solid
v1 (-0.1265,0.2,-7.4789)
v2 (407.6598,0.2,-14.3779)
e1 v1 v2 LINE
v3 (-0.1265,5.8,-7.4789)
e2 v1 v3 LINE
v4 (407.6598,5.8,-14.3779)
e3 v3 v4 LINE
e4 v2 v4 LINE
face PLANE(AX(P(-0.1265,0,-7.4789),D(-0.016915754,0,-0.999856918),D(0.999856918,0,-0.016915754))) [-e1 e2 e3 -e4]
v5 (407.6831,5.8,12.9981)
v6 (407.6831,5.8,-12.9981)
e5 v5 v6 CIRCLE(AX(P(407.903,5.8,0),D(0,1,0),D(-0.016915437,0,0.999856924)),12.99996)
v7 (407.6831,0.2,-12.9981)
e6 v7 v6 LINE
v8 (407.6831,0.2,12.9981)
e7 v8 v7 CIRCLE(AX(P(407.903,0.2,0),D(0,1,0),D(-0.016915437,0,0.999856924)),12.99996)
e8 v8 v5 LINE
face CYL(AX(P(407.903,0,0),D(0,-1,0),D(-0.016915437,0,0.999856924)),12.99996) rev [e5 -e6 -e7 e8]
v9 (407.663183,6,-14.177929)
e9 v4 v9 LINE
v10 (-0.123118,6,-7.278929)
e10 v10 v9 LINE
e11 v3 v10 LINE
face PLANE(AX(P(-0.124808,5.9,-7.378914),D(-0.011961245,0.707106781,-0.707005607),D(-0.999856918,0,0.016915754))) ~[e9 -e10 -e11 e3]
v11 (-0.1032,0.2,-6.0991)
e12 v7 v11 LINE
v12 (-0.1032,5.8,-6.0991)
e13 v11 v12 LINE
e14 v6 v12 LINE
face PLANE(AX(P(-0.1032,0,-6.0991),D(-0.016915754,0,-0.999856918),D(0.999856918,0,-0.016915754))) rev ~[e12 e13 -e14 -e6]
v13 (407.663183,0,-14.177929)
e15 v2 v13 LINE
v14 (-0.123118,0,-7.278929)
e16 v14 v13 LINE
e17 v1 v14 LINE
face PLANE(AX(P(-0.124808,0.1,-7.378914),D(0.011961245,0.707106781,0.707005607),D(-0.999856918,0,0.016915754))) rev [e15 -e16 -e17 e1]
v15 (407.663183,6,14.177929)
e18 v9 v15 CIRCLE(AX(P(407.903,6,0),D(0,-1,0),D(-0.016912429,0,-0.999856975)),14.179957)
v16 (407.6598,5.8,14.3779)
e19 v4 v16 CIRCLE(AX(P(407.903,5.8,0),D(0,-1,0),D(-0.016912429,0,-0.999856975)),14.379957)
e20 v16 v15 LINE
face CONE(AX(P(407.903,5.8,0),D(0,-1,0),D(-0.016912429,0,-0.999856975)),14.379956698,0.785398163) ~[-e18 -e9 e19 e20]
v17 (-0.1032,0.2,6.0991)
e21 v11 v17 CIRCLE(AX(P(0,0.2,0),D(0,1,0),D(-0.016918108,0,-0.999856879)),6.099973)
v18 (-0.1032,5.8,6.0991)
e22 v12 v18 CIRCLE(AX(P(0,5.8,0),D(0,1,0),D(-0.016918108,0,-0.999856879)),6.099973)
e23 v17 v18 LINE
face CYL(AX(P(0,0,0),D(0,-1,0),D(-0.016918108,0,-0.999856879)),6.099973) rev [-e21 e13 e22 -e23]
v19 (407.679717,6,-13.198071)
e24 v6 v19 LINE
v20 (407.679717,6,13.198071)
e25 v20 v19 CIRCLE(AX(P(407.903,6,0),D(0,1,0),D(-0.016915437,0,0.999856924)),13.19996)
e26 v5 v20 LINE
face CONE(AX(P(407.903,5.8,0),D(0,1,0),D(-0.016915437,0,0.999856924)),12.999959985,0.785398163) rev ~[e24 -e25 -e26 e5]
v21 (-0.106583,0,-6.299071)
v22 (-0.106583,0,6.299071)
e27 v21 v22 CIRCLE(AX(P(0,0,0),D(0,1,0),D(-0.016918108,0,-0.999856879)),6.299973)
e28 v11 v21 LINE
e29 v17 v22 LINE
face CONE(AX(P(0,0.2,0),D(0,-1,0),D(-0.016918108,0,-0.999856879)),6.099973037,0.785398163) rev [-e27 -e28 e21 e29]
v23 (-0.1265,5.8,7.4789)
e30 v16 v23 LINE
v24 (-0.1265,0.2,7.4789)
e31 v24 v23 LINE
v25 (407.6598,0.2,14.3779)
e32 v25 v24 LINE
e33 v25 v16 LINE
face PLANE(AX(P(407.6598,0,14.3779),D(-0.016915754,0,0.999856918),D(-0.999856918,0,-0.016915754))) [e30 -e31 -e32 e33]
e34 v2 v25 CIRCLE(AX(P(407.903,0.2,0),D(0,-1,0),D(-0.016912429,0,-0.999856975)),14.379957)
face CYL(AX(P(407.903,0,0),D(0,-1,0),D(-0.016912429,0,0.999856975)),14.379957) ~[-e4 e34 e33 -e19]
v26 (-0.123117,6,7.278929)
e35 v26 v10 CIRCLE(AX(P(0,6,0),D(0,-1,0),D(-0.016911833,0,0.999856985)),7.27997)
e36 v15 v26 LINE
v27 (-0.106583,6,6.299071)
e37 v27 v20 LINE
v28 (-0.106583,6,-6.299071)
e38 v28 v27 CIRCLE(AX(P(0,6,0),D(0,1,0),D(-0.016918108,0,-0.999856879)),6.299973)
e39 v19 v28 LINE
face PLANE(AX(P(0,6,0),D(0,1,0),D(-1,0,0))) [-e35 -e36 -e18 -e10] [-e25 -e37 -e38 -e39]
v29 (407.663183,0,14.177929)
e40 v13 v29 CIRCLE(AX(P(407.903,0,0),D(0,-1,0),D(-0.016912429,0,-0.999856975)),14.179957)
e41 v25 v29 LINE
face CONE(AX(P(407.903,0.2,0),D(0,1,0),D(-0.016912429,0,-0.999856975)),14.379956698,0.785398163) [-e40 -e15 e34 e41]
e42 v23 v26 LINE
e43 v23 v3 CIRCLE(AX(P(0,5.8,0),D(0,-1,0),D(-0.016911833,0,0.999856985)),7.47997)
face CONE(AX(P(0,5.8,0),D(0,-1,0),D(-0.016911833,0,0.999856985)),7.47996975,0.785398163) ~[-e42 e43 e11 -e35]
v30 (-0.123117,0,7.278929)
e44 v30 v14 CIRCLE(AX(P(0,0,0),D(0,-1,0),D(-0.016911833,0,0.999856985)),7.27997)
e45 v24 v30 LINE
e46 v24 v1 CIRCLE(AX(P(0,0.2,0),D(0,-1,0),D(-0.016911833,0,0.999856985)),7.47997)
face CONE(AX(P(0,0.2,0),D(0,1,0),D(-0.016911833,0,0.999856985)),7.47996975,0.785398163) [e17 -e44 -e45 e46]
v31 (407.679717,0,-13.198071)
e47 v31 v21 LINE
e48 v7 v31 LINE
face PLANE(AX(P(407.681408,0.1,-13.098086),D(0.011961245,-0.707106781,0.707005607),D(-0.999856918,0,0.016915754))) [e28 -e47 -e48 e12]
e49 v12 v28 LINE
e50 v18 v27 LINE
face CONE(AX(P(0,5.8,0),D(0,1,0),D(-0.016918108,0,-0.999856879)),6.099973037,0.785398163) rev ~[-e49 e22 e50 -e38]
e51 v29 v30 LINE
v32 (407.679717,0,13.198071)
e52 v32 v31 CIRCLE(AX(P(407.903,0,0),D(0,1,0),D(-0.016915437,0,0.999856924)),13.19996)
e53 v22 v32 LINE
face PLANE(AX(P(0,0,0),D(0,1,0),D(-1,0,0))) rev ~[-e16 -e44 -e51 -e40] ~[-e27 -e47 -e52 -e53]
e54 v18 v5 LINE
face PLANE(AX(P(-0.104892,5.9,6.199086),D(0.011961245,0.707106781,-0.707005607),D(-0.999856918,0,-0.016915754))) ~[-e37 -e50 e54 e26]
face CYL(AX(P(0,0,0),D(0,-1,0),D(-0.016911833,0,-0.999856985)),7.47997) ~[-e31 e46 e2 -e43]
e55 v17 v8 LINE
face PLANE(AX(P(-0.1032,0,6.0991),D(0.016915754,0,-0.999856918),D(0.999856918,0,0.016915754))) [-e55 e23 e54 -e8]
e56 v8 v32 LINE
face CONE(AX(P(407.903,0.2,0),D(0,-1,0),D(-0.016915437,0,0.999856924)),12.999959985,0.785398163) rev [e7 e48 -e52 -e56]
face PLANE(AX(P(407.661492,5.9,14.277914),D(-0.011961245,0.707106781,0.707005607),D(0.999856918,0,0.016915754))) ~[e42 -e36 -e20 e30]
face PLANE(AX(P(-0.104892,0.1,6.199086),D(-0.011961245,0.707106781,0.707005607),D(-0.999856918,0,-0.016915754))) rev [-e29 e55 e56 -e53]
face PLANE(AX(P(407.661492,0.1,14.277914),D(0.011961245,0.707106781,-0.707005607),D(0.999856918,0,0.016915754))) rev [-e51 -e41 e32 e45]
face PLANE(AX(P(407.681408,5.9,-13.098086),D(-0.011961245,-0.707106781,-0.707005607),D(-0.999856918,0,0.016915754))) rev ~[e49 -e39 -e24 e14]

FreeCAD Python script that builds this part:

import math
import FreeCAD as App
import Part
import Sketcher
from FreeCAD import Vector
Q = App.Units.Quantity


def edges_at(feature, points):
    """Names of the edges that pass closest to the given points."""
    edges = feature.Shape.Edges
    near = lambda p: min(range(len(edges)), key=lambda i: edges[i].distToShape(Part.Vertex(*p))[0])
    return sorted({f"Edge{near(p) + 1}" for p in points})

doc = App.newDocument("Part")
params = doc.addObject("Spreadsheet::Sheet", "Params")
for row, (alias, value) in enumerate([
    ("sketch1_radius", "13 mm"),
    ("sketch1_radius2", "6.1 mm"),
    ("sketch1_radius3", "14.38 mm"),
    ("pad1_length", "6 mm"),
    ("chamfer_size", "0.2 mm"),
], start=1):
    params.set(f"A{row}", alias)
    params.set(f"B{row}", "=" + value)
    params.setAlias(f"B{row}", alias)

body = doc.addObject("PartDesign::Body", "Body")

# Sketch on XZ plane
sketch1 = body.newObject("Sketcher::SketchObject", "Sketch")
sketch1.AttachmentSupport = (doc.getObject("XZ_Plane"), [""])
sketch1.MapMode = "FlatFace"
sketch1.addGeometry(Part.LineSegment(Vector(0, 7, 0), Vector(408, 14, 0)), False)
sketch1.addGeometry(Part.ArcOfCircle(Part.Circle(Vector(408, 0, 0), Vector(0, 0, 1), 14), math.radians(-91), math.radians(91)), False)
sketch1.addGeometry(Part.LineSegment(Vector(408, -14, 0), Vector(0, -7, 0)), False)
sketch1.addGeometry(Part.ArcOfCircle(Part.Circle(Vector(0, 0, 0), Vector(0, 0, 1), 7), math.radians(91), math.radians(269)), False)
sketch1.addGeometry(Part.ArcOfCircle(Part.Circle(Vector(0, 0, 0), Vector(0, 0, 1), 6), math.radians(91), math.radians(269)), False)
sketch1.addGeometry(Part.LineSegment(Vector(0, -6, 0), Vector(408, -13, 0)), False)
sketch1.addGeometry(Part.ArcOfCircle(Part.Circle(Vector(408, 0, 0), Vector(0, 0, 1), 13), math.radians(-91), math.radians(91)), False)
sketch1.addGeometry(Part.LineSegment(Vector(408, 13, 0), Vector(0, 6, 0)), False)
sketch1.addConstraint(Sketcher.Constraint("Tangent", 0, 2, 1, 2))
sketch1.addConstraint(Sketcher.Constraint("Tangent", 1, 1, 2, 1))
sketch1.addConstraint(Sketcher.Constraint("Tangent", 2, 2, 3, 2))
sketch1.addConstraint(Sketcher.Constraint("Tangent", 3, 1, 0, 1))
sketch1.addConstraint(Sketcher.Constraint("Tangent", 4, 2, 5, 1))
sketch1.addConstraint(Sketcher.Constraint("Tangent", 5, 2, 6, 1))
sketch1.addConstraint(Sketcher.Constraint("Tangent", 6, 2, 7, 1))
sketch1.addConstraint(Sketcher.Constraint("Tangent", 7, 2, 4, 1))
sketch1.addConstraint(Sketcher.Constraint("Coincident", 3, 3, -1, 1))
sketch1.addConstraint(Sketcher.Constraint("Coincident", 4, 3, -1, 1))
sketch1.addConstraint(Sketcher.Constraint("Coincident", 6, 3, 1, 3))
sketch1.addConstraint(Sketcher.Constraint("PointOnObject", 1, 3, -1))
sketch1.addConstraint(Sketcher.Constraint("Parallel", 2, 5))
sketch1.addConstraint(Sketcher.Constraint("Radius", 6, Q("13 mm")))
sketch1.addConstraint(Sketcher.Constraint("Radius", 4, Q("6.1 mm")))
sketch1.addConstraint(Sketcher.Constraint("Radius", 1, Q("14.38 mm")))
sketch1.addConstraint(Sketcher.Constraint("DistanceX", -1, 1, 1, 3, Q("407.903 mm")))
sketch1.setExpression("Constraints[13]", "Params.sketch1_radius")
sketch1.setExpression("Constraints[14]", "Params.sketch1_radius2")
sketch1.setExpression("Constraints[15]", "Params.sketch1_radius3")
pad1 = body.newObject("PartDesign::Pad", "Pad")
pad1.Profile = sketch1
pad1.setExpression("Length", "Params.pad1_length")
pad1.Reversed = True
doc.recompute()

chamfer = body.newObject("PartDesign::Chamfer", "Chamfer")
chamfer.Base = (pad1, edges_at(pad1, [
    (203.79, 6, 9.549),
    (-6.1, 6, 0),
    (203.79, 6, -9.549),
    (420.903, 6, 0),
    (203.767, 6, 10.928),
    (422.283, 6, 0),
    (203.767, 6, -10.928),
    (-7.48, 6, 0),
    (203.767, 0, 10.928),
    (-7.48, 0, 0),
    (203.767, 0, -10.928),
    (422.283, 0, 0),
    (203.79, 0, 9.549),
    (420.903, 0, 0),
    (203.79, 0, -9.549),
    (-6.1, 0, 0),
]))
chamfer.setExpression("Size", "Params.chamfer_size")

doc.recompute()
